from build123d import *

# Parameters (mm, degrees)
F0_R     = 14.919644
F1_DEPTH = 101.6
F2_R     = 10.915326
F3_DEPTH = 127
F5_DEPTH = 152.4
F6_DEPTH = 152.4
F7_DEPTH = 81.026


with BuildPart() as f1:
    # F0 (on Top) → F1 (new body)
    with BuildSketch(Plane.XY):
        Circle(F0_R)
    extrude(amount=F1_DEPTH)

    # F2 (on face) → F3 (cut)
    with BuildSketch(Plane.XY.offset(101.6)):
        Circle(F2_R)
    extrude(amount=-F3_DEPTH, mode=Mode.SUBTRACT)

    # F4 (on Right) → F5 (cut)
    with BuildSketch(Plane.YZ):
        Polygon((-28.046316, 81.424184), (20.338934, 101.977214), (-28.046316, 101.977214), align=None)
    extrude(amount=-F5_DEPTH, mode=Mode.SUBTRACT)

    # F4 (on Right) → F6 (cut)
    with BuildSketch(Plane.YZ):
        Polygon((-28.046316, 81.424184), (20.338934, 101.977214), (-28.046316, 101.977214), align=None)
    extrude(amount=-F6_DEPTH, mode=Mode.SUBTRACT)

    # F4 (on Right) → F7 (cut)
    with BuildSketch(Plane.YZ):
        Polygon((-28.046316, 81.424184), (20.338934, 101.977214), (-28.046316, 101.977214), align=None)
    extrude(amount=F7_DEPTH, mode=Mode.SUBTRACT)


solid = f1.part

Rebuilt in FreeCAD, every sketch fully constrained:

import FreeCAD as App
import Part
import Sketcher
from FreeCAD import Vector
Q = App.Units.Quantity


def add_polygon(sketch, points):
    """Adds a closed chain of lines whose ends are joined by coincident constraints."""
    first, n = sketch.GeometryCount, len(points)
    for a, b in zip(points, points[1:] + points[:1]):
        sketch.addGeometry(Part.LineSegment(App.Vector(*a, 0), App.Vector(*b, 0)), False)
    for i in range(n):
        sketch.addConstraint(Sketcher.Constraint("Coincident", first + i, 2, first + (i + 1) % n, 1))

doc = App.newDocument("Part")
body = doc.addObject("PartDesign::Body", "Body")

# Sketch on XY plane
sketch1 = body.newObject("Sketcher::SketchObject", "Sketch")
sketch1.AttachmentSupport = (doc.getObject("XY_Plane"), [""])
sketch1.MapMode = "FlatFace"
sketch1.addGeometry(Part.Circle(Vector(0, 0, 0), Vector(0, 0, 1), 14.919644), False)
sketch1.addConstraint(Sketcher.Constraint("Coincident", 0, 3, -1, 1))
sketch1.addConstraint(Sketcher.Constraint("Diameter", 0, 29.839288))
pad1 = body.newObject("PartDesign::Pad", "Pad")
pad1.Profile = sketch1
pad1.Length = Q("4 in")

# Sketch on XY plane
sketch2 = body.newObject("Sketcher::SketchObject", "Sketch001")
sketch2.AttachmentSupport = (doc.getObject("XY_Plane"), [""])
sketch2.MapMode = "FlatFace"
sketch2.AttachmentOffset = App.Placement(Vector(0, 0, 4 * 25.4), App.Rotation())
sketch2.addGeometry(Part.Circle(Vector(0, 0, 0), Vector(0, 0, 1), 10.915326), False)
sketch2.addConstraint(Sketcher.Constraint("Coincident", 0, 3, -1, 1))
sketch2.addConstraint(Sketcher.Constraint("Diameter", 0, 21.830652))
pocket1 = body.newObject("PartDesign::Pocket", "Pocket")
pocket1.Profile = sketch2
pocket1.Length = Q("5 in")

# Sketch on YZ plane
sketch3 = body.newObject("Sketcher::SketchObject", "Sketch002")
sketch3.AttachmentSupport = (doc.getObject("YZ_Plane"), [""])
sketch3.MapMode = "FlatFace"
add_polygon(sketch3, [(-28.046316, 81.424184), (20.338934, 101.977214), (-28.046316, 101.977214)])  # lines 0-2
sketch3.addConstraint(Sketcher.Constraint("Horizontal", 1))
sketch3.addConstraint(Sketcher.Constraint("Vertical", 2))
sketch3.addConstraint(Sketcher.Constraint("DistanceX", 1, 2, 1, 1, 48.38525))
sketch3.addConstraint(Sketcher.Constraint("DistanceY", 2, 2, 2, 1, 20.55303))
sketch3.addConstraint(Sketcher.Constraint("DistanceX", -1, 1, 0, 2, 20.338934))
sketch3.addConstraint(Sketcher.Constraint("DistanceY", -1, 1, 0, 2, 101.977214))
pocket2 = body.newObject("PartDesign::Pocket", "Pocket001")
pocket2.Profile = sketch3
pocket2.Length = Q("6 in")

# Sketch on YZ plane
sketch4 = body.newObject("Sketcher::SketchObject", "Sketch003")
sketch4.AttachmentSupport = (doc.getObject("YZ_Plane"), [""])
sketch4.MapMode = "FlatFace"
add_polygon(sketch4, [(-28.046316, 81.424184), (20.338934, 101.977214), (-28.046316, 101.977214)])  # lines 0-2
sketch4.addConstraint(Sketcher.Constraint("Horizontal", 1))
sketch4.addConstraint(Sketcher.Constraint("Vertical", 2))
sketch4.addConstraint(Sketcher.Constraint("DistanceX", 1, 2, 1, 1, 48.38525))
sketch4.addConstraint(Sketcher.Constraint("DistanceY", 2, 2, 2, 1, 20.55303))
sketch4.addConstraint(Sketcher.Constraint("DistanceX", -1, 1, 0, 2, 20.338934))
sketch4.addConstraint(Sketcher.Constraint("DistanceY", -1, 1, 0, 2, 101.977214))
pocket3 = body.newObject("PartDesign::Pocket", "Pocket002")
pocket3.Profile = sketch4
pocket3.Length = Q("6 in")

# Sketch on YZ plane
sketch5 = body.newObject("Sketcher::SketchObject", "Sketch004")
sketch5.AttachmentSupport = (doc.getObject("YZ_Plane"), [""])
sketch5.MapMode = "FlatFace"
add_polygon(sketch5, [(-28.046316, 81.424184), (20.338934, 101.977214), (-28.046316, 101.977214)])  # lines 0-2
sketch5.addConstraint(Sketcher.Constraint("Horizontal", 1))
sketch5.addConstraint(Sketcher.Constraint("Vertical", 2))
sketch5.addConstraint(Sketcher.Constraint("DistanceX", 1, 2, 1, 1, 48.38525))
sketch5.addConstraint(Sketcher.Constraint("DistanceY", 2, 2, 2, 1, 20.55303))
sketch5.addConstraint(Sketcher.Constraint("DistanceX", -1, 1, 0, 2, 20.338934))
sketch5.addConstraint(Sketcher.Constraint("DistanceY", -1, 1, 0, 2, 101.977214))
pocket4 = body.newObject("PartDesign::Pocket", "Pocket003")
pocket4.Profile = sketch5
pocket4.Length = Q("3.19 in")
pocket4.Reversed = True

doc.recompute()
